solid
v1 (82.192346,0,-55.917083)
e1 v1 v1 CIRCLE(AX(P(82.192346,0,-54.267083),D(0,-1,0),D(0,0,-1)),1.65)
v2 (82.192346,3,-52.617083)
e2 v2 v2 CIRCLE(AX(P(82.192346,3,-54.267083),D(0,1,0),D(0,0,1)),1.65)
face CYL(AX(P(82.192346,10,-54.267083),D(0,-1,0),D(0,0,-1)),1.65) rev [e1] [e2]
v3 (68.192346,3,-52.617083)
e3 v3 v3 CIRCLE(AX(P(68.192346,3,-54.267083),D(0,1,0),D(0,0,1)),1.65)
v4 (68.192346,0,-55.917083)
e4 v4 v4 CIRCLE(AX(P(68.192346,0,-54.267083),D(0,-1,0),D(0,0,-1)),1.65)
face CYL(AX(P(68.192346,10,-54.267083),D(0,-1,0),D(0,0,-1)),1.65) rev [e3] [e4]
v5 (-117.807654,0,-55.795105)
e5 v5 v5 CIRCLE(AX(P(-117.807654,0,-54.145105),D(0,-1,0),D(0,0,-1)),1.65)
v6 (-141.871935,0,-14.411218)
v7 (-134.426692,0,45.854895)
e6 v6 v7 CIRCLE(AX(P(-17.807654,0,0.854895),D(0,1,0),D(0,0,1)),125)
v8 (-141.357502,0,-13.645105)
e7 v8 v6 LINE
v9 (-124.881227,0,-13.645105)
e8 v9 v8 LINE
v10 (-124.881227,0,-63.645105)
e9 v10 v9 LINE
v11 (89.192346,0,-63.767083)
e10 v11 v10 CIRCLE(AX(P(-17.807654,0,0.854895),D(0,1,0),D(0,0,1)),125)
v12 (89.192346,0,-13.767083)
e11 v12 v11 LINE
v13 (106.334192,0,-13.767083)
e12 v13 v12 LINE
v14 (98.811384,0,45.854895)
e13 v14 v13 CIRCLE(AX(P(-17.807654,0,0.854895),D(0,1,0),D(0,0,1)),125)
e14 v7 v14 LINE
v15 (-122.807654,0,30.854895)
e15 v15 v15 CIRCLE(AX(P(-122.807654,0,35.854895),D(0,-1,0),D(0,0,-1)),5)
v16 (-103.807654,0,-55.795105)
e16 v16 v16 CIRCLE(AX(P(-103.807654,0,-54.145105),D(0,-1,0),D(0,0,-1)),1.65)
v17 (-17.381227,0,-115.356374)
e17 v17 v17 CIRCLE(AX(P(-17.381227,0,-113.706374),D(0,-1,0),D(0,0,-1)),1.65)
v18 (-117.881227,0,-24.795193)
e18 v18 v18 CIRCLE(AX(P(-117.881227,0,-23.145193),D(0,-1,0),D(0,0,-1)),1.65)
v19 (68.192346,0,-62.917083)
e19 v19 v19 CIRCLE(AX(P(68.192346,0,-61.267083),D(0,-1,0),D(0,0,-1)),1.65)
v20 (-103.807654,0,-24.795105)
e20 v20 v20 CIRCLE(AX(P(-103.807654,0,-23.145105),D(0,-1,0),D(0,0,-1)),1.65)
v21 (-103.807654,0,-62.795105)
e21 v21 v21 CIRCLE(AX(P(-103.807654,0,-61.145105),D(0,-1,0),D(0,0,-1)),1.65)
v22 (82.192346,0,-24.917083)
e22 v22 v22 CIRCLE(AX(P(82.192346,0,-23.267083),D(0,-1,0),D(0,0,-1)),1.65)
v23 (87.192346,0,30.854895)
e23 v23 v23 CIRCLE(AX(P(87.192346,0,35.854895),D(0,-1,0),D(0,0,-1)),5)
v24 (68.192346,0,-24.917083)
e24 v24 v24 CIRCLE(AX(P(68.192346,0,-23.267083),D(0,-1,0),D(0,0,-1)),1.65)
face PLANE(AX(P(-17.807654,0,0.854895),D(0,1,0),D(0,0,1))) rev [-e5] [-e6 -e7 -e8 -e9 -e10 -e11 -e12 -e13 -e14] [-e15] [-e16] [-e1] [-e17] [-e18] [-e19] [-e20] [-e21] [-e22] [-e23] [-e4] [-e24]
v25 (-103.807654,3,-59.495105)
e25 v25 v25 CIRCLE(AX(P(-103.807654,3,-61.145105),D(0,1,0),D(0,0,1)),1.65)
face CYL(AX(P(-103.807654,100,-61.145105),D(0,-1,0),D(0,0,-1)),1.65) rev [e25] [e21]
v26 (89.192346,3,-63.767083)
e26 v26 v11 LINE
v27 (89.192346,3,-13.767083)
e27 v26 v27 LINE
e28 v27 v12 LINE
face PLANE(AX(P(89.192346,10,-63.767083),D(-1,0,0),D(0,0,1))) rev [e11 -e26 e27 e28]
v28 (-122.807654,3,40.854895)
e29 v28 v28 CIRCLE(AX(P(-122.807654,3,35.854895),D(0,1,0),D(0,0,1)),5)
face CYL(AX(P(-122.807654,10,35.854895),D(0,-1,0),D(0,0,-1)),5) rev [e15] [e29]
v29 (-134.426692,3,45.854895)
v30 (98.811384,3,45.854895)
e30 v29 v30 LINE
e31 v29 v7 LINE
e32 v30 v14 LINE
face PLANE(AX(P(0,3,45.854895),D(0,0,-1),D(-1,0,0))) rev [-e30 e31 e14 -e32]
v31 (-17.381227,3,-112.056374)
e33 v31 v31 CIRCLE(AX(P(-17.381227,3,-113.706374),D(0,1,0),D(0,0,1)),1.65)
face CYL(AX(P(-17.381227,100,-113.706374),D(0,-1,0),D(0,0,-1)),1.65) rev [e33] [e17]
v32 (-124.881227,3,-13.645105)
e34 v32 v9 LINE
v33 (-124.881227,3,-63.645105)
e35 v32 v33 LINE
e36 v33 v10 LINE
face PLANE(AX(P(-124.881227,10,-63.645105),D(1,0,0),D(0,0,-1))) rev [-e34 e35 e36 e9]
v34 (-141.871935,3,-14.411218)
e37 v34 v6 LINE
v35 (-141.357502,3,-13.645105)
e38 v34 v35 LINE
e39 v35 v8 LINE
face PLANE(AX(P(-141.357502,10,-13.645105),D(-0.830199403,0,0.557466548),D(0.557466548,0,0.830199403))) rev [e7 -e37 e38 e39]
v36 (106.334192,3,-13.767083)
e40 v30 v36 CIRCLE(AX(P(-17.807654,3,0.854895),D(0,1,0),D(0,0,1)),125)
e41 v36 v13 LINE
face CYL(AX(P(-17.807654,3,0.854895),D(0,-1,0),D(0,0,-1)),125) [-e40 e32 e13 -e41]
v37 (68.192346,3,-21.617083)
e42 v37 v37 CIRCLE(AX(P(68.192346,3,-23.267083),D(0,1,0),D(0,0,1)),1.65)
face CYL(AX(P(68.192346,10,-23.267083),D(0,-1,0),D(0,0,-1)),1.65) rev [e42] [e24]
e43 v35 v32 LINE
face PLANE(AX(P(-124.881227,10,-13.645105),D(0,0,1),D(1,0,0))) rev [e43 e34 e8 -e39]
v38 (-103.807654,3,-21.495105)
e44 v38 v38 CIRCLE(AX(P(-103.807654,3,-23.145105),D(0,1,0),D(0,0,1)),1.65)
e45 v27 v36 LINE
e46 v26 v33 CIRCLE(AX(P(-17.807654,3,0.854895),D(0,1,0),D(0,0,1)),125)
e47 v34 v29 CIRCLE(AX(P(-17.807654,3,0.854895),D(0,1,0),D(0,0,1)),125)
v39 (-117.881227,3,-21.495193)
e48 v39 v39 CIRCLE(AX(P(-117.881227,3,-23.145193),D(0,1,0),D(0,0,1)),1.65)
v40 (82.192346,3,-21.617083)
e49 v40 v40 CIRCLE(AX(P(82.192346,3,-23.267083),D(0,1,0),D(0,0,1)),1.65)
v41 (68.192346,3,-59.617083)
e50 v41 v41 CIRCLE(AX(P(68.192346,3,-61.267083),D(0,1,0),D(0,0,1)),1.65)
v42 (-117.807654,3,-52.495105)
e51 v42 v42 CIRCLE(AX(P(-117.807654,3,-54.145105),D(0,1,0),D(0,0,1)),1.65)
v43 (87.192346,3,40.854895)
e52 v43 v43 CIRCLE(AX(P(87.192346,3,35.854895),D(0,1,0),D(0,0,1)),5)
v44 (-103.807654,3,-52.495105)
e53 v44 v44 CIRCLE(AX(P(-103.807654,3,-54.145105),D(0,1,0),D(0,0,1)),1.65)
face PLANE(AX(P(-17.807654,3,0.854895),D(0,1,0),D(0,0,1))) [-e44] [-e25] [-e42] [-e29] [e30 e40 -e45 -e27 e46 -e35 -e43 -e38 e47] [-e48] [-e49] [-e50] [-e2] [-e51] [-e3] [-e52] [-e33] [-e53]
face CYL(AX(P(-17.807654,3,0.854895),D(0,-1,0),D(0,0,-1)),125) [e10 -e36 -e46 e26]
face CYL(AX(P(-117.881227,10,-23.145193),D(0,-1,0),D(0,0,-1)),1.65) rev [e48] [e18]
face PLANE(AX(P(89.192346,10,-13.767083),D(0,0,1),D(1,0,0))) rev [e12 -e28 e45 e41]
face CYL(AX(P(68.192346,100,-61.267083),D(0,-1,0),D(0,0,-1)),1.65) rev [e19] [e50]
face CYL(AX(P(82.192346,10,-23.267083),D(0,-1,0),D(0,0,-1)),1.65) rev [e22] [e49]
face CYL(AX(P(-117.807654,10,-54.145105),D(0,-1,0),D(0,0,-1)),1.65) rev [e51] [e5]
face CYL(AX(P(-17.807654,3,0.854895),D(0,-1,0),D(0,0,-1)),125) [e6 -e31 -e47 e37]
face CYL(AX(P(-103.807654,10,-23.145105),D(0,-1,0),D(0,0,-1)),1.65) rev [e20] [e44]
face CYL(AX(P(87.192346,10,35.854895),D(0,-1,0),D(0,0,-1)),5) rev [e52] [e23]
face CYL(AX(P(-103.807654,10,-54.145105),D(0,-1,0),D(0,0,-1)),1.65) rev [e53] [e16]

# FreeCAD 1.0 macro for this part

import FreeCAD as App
import Part
import Sketcher

V = App.Vector
Q = App.Units.Quantity


def add_polygon(sketch, points):
    """Adds a closed chain of lines whose ends are joined by coincident constraints."""
    first, n = sketch.GeometryCount, len(points)
    for a, b in zip(points, points[1:] + points[:1]):
        sketch.addGeometry(Part.LineSegment(App.Vector(*a, 0), App.Vector(*b, 0)), False)
    for i in range(n):
        sketch.addConstraint(Sketcher.Constraint("Coincident", first + i, 2, first + (i + 1) % n, 1))

doc = App.newDocument("Part")
body = doc.addObject("PartDesign::Body", "Body")

# Sketch on XZ plane
sketch1 = doc.addObject("Sketcher::SketchObject", "Sketch")
body.addObject(sketch1)
sketch1.AttachmentSupport = (doc.XZ_Plane, [""])
sketch1.MapMode = "FlatFace"
sketch1.addGeometry(Part.Circle(V(-17.807654, 0.854895, 0), V(0, 0, 1), 125), False)
sketch1.addConstraint([
    Sketcher.Constraint("Diameter", 0, Q("250 mm")),
    Sketcher.Constraint("DistanceX", 0, 3, -1, 1, Q("17.807654 mm")),
    Sketcher.Constraint("DistanceY", -1, 1, 0, 3, Q("0.854895 mm")),
])
pad1 = doc.addObject("PartDesign::Pad", "Pad")
body.addObject(pad1)
pad1.Profile = sketch1
pad1.Length = 3
pad1.Reversed = True

# Sketch on XZ plane
sketch2 = doc.addObject("Sketcher::SketchObject", "Sketch001")
body.addObject(sketch2)
sketch2.AttachmentSupport = (doc.XZ_Plane, [""])
sketch2.MapMode = "FlatFace"
add_polygon(sketch2, [(-735.289652, 45.854895), (699.674345, 45.854895), (699.674345, 1247.580815), (-735.289652, 1247.580815)])  # lines 0-3
sketch2.addConstraint([
    Sketcher.Constraint("Horizontal", 0),
    Sketcher.Constraint("Vertical", 1),
    Sketcher.Constraint("Horizontal", 2),
    Sketcher.Constraint("Vertical", 3),
    Sketcher.Constraint("DistanceY", 1, 1, 1, 2, Q("1201.725921 mm")),
    Sketcher.Constraint("DistanceX", 0, 1, 0, 2, Q("1434.963996 mm")),
    Sketcher.Constraint("DistanceX", 2, 2, -1, 1, Q("735.289652 mm")),
    Sketcher.Constraint("DistanceY", -1, 1, 0, 2, Q("45.854895 mm")),
])
pocket1 = doc.addObject("PartDesign::Pocket", "Pocket")
body.addObject(pocket1)
pocket1.Profile = sketch2
pocket1.Length = 3

# Sketch on XZ plane
sketch3 = doc.addObject("Sketcher::SketchObject", "Sketch002")
body.addObject(sketch3)
sketch3.AttachmentSupport = (doc.XZ_Plane, [""])
sketch3.MapMode = "FlatFace"
sketch3.addGeometry(Part.Circle(V(-117.807654, -54.145105, 0), V(0, 0, 1), 1.65), False)  # 0
sketch3.addGeometry(Part.Circle(V(-117.881227, -23.145193, 0), V(0, 0, 1), 1.65), False)  # 1
sketch3.addGeometry(Part.Circle(V(-103.807654, -54.145105, 0), V(0, 0, 1), 1.65), False)  # 2
sketch3.addGeometry(Part.Circle(V(-103.807654, -23.145105, 0), V(0, 0, 1), 1.65), False)  # 3
sketch3.addGeometry(Part.Circle(V(68.192346, -54.267083, 0), V(0, 0, 1), 1.65), False)  # 4
sketch3.addGeometry(Part.Circle(V(82.192346, -54.267083, 0), V(0, 0, 1), 1.65), False)  # 5
sketch3.addGeometry(Part.Circle(V(82.192346, -23.267083, 0), V(0, 0, 1), 1.65), False)  # 6
sketch3.addGeometry(Part.Circle(V(68.192346, -23.267083, 0), V(0, 0, 1), 1.65), False)  # 7
sketch3.addGeometry(Part.Circle(V(-122.807654, 35.854895, 0), V(0, 0, 1), 5), False)  # 8
sketch3.addGeometry(Part.Circle(V(87.192346, 35.854895, 0), V(0, 0, 1), 5), False)  # 9
add_polygon(sketch3, [(-124.881227, -63.645105), (-124.881227, -13.645105), (-141.357502, -13.645105), (-159.377607, -40.481299)])  # lines 10-13
add_polygon(sketch3, [(89.192346, -13.767083), (89.192346, -63.767083), (114.079844, -54.596316), (106.334192, -13.767083)])  # lines 14-17
sketch3.addConstraint([
    Sketcher.Constraint("Vertical", 10),
    Sketcher.Constraint("Horizontal", 11),
    Sketcher.Constraint("Vertical", 14),
    Sketcher.Constraint("Horizontal", 17),
    Sketcher.Constraint("Equal", 0, 1),
    Sketcher.Constraint("Equal", 1, 2),
    Sketcher.Constraint("Equal", 2, 3),
    Sketcher.Constraint("Equal", 3, 4),
    Sketcher.Constraint("Equal", 4, 5),
    Sketcher.Constraint("Equal", 5, 6),
    Sketcher.Constraint("Equal", 6, 7),
    Sketcher.Constraint("Equal", 8, 9),
    Sketcher.Constraint("Perpendicular", 12, 13),
    Sketcher.Constraint("Horizontal", 0, 3, 2, 3),
    Sketcher.Constraint("Horizontal", 4, 3, 5, 3),
    Sketcher.Constraint("Horizontal", 6, 3, 7, 3),
    Sketcher.Constraint("Horizontal", 8, 3, 9, 3),
    Sketcher.Constraint("Vertical", 2, 3, 3, 3),
    Sketcher.Constraint("Vertical", 5, 3, 6, 3),
    Sketcher.Constraint("Vertical", 4, 3, 7, 3),
    Sketcher.Constraint("Equal", 10, 14),
    Sketcher.Constraint("Diameter", 8, Q("10 mm")),
    Sketcher.Constraint("Diameter", 0, Q("3.3 mm")),
    Sketcher.Constraint("DistanceY", 10, 1, 10, 2, Q("50 mm")),
    Sketcher.Constraint("DistanceX", 0, 3, 2, 3, Q("14 mm")),
    Sketcher.Constraint("DistanceY", 2, 3, 3, 3, Q("31 mm")),
    Sketcher.Constraint("DistanceX", 2, 3, 4, 3, Q("172 mm")),
    Sketcher.Constraint("DistanceX", 4, 3, 5, 3, Q("14 mm")),
    Sketcher.Constraint("DistanceY", 5, 3, 6, 3, Q("31 mm")),
    Sketcher.Constraint("DistanceX", 8, 3, 3, 3, Q("19 mm")),
    Sketcher.Constraint("DistanceY", 3, 3, 8, 3, Q("59 mm")),
    Sketcher.Constraint("DistanceX", 6, 3, 9, 3, Q("5 mm")),
    Sketcher.Constraint("DistanceX", 10, 2, 1, 3, Q("7 mm")),
    Sketcher.Constraint("DistanceX", 5, 3, 14, 2, Q("7 mm")),
    Sketcher.Constraint("DistanceY", 3, 3, 10, 2, Q("9.5 mm")),
    Sketcher.Constraint("DistanceY", 14, 2, 5, 3, Q("9.5 mm")),
    Sketcher.Constraint("DistanceX", 11, 2, -1, 1, Q("141.357502 mm")),
    Sketcher.Constraint("DistanceY", 12, 2, -1, 1, Q("40.481299 mm")),
    Sketcher.Constraint("Distance", 13, Q("41.551921 mm")),
    Sketcher.Constraint("DistanceX", 11, 2, 11, 1, Q("16.476275 mm")),
    Sketcher.Constraint("DistanceX", 17, 2, 17, 1, Q("17.141845 mm")),
    Sketcher.Constraint("DistanceX", -1, 1, 16, 2, Q("106.334192 mm")),
    Sketcher.Constraint("DistanceY", 4, 3, 1, 3, Q("31.12189 mm")),
    Sketcher.Constraint("Distance", 15, Q("26.523395 mm")),
    Sketcher.Constraint("Distance", 16, Q("41.557447 mm")),
    Sketcher.Constraint("DistanceY", 1, 3, -1, 1, Q("23.145193 mm")),
])
pocket2 = doc.addObject("PartDesign::Pocket", "Pocket001")
body.addObject(pocket2)
pocket2.Profile = sketch3
pocket2.Length = 10

# Sketch on XZ plane
sketch4 = doc.addObject("Sketcher::SketchObject", "Sketch003")
body.addObject(sketch4)
sketch4.AttachmentSupport = (doc.XZ_Plane, [""])
sketch4.MapMode = "FlatFace"
sketch4.addGeometry([
    Part.Circle(V(-103.807654, -61.145105, 0), V(0, 0, 1), 1.65),
    Part.Circle(V(68.192346, -61.267083, 0), V(0, 0, 1), 1.65),
    Part.Circle(V(-17.381227, -113.706374, 0), V(0, 0, 1), 1.65),
], False)
sketch4.addConstraint([
    Sketcher.Constraint("Equal", 0, 1),
    Sketcher.Constraint("Equal", 1, 2),
    Sketcher.Constraint("Diameter", 0, Q("3.3 mm")),
    Sketcher.Constraint("DistanceX", 0, 3, 1, 3, Q("172 mm")),
    Sketcher.Constraint("DistanceY", 2, 3, 1, 3, Q("52.439291 mm")),
    Sketcher.Constraint("DistanceY", 2, 3, 0, 3, Q("52.561269 mm")),
    Sketcher.Constraint("DistanceX", 0, 3, -1, 1, Q("103.807654 mm")),
    Sketcher.Constraint("DistanceY", 0, 3, -1, 1, Q("61.145105 mm")),
    Sketcher.Constraint("DistanceX", 2, 3, -1, 1, Q("17.381227 mm")),
])
pocket3 = doc.addObject("PartDesign::Pocket", "Pocket002")
body.addObject(pocket3)
pocket3.Profile = sketch4
pocket3.Length = 100

doc.recompute()
